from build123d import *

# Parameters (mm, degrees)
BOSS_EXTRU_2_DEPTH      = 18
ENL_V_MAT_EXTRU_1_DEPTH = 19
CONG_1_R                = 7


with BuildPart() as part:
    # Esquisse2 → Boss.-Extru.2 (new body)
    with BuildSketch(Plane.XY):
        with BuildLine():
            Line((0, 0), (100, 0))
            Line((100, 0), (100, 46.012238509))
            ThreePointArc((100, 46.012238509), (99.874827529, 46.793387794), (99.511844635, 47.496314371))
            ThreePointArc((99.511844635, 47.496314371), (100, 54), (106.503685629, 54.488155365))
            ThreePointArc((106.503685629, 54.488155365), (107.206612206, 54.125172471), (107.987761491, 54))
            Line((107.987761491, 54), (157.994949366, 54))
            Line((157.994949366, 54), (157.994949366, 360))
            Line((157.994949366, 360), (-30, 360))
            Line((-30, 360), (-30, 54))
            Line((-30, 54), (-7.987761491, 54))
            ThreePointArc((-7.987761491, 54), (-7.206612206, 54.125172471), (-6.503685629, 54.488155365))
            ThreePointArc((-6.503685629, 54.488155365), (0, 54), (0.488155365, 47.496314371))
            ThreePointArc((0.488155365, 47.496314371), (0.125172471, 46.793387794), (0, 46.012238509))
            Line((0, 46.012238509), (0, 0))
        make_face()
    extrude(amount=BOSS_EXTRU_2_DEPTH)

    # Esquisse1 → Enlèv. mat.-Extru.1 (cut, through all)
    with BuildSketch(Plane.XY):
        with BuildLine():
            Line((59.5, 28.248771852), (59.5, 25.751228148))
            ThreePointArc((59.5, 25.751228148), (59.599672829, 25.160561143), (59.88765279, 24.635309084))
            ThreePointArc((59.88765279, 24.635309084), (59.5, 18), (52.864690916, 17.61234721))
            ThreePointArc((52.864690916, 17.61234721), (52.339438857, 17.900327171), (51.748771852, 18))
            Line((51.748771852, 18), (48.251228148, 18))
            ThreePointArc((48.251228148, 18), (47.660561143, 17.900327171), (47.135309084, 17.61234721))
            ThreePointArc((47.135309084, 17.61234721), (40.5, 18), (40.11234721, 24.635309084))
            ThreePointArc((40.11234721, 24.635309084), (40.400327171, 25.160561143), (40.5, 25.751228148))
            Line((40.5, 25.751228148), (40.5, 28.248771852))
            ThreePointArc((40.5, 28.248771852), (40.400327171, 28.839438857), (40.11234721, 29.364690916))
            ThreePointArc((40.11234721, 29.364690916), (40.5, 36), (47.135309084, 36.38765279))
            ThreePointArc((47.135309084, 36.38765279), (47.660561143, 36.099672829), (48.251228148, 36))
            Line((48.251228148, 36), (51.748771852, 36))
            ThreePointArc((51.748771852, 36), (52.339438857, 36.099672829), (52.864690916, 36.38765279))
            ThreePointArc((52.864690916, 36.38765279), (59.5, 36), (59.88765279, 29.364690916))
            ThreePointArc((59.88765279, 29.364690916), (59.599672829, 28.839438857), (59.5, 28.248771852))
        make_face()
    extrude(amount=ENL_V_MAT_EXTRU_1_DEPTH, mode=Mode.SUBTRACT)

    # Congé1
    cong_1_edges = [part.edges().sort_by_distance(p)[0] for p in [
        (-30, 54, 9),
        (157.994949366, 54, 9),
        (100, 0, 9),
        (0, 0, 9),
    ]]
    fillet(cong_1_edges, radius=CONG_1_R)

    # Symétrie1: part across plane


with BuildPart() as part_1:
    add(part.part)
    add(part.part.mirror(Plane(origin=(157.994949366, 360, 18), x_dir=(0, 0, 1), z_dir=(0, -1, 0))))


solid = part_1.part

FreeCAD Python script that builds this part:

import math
import FreeCAD as App
import Part
import Sketcher

V = App.Vector


def edges_at(feature, points):
    """Names of the edges that pass closest to the given points."""
    edges = feature.Shape.Edges
    near = lambda p: min(range(len(edges)), key=lambda i: edges[i].distToShape(Part.Vertex(*p))[0])
    return sorted({f"Edge{near(p) + 1}" for p in points})

doc = App.newDocument("Part")
body = doc.addObject("PartDesign::Body", "Body")

sketch1 = body.newObject("Sketcher::SketchObject", "Sketch")
sketch1.AttachmentSupport = (doc.getObject("XY_Plane"), [""])
sketch1.MapMode = "FlatFace"
sketch1.addGeometry(Part.LineSegment(V(0, 0, 0), V(100, 0, 0)), False)
sketch1.addGeometry(Part.LineSegment(V(100, 0, 0), V(100, 46, 0)), False)
sketch1.addGeometry(Part.ArcOfCircle(Part.Circle(V(97.5, 46, 0), V(0, 0, 1), 2.5), math.radians(0), math.radians(36)), False)
sketch1.addGeometry(Part.ArcOfCircle(Part.Circle(V(103.5, 50.5, 0), V(0, 0, 1), 5), math.radians(54), math.radians(216)), False)
sketch1.addGeometry(Part.ArcOfCircle(Part.Circle(V(108, 56.5, 0), V(0, 0, 1), 2.5), math.radians(-126), math.radians(-90)), False)
sketch1.addGeometry(Part.LineSegment(V(108, 54, 0), V(158, 54, 0)), False)
sketch1.addGeometry(Part.LineSegment(V(158, 54, 0), V(158, 360, 0)), False)
sketch1.addGeometry(Part.LineSegment(V(158, 360, 0), V(-30, 360, 0)), False)
sketch1.addGeometry(Part.LineSegment(V(-30, 360, 0), V(-30, 54, 0)), False)
sketch1.addGeometry(Part.LineSegment(V(-30, 54, 0), V(-8, 54, 0)), False)
sketch1.addGeometry(Part.ArcOfCircle(Part.Circle(V(-8, 56.5, 0), V(0, 0, 1), 2.5), math.radians(-90), math.radians(-54)), False)
sketch1.addGeometry(Part.ArcOfCircle(Part.Circle(V(-3.5, 50.5, 0), V(0, 0, 1), 5), math.radians(-36), math.radians(126)), False)
sketch1.addGeometry(Part.ArcOfCircle(Part.Circle(V(2.5, 46, 0), V(0, 0, 1), 2.5), math.radians(144), math.radians(180)), False)
sketch1.addGeometry(Part.LineSegment(V(0, 46, 0), V(0, 0, 0)), False)
sketch1.addConstraint(Sketcher.Constraint("Coincident", 0, 2, 1, 1))
sketch1.addConstraint(Sketcher.Constraint("Tangent", 1, 2, 2, 1))
sketch1.addConstraint(Sketcher.Constraint("Tangent", 2, 2, 3, 2))
sketch1.addConstraint(Sketcher.Constraint("Tangent", 3, 1, 4, 1))
sketch1.addConstraint(Sketcher.Constraint("Tangent", 4, 2, 5, 1))
sketch1.addConstraint(Sketcher.Constraint("Coincident", 5, 2, 6, 1))
sketch1.addConstraint(Sketcher.Constraint("Coincident", 6, 2, 7, 1))
sketch1.addConstraint(Sketcher.Constraint("Coincident", 7, 2, 8, 1))
sketch1.addConstraint(Sketcher.Constraint("Coincident", 8, 2, 9, 1))
sketch1.addConstraint(Sketcher.Constraint("Tangent", 9, 2, 10, 1))
sketch1.addConstraint(Sketcher.Constraint("Tangent", 10, 2, 11, 2))
sketch1.addConstraint(Sketcher.Constraint("Tangent", 11, 1, 12, 1))
sketch1.addConstraint(Sketcher.Constraint("Tangent", 12, 2, 13, 1))
sketch1.addConstraint(Sketcher.Constraint("Coincident", 13, 2, 0, 1))
sketch1.addConstraint(Sketcher.Constraint("Horizontal", 0))
sketch1.addConstraint(Sketcher.Constraint("Vertical", 1))
sketch1.addConstraint(Sketcher.Constraint("Horizontal", 5))
sketch1.addConstraint(Sketcher.Constraint("Vertical", 6))
sketch1.addConstraint(Sketcher.Constraint("Horizontal", 7))
sketch1.addConstraint(Sketcher.Constraint("Vertical", 8))
sketch1.addConstraint(Sketcher.Constraint("Horizontal", 9))
sketch1.addConstraint(Sketcher.Constraint("Vertical", 13))
sketch1.addConstraint(Sketcher.Constraint("Coincident", 13, 2, -1, 1))
sketch1.addConstraint(Sketcher.Constraint("Equal", 2, 4))
sketch1.addConstraint(Sketcher.Constraint("Equal", 4, 10))
sketch1.addConstraint(Sketcher.Constraint("Equal", 3, 11))
sketch1.addConstraint(Sketcher.Constraint("Equal", 10, 12))
sketch1.addConstraint(Sketcher.Constraint("Horizontal", 4, 3, 10, 3))
sketch1.addConstraint(Sketcher.Constraint("Horizontal", 3, 3, 11, 3))
sketch1.addConstraint(Sketcher.Constraint("Horizontal", 2, 3, 12, 3))
sketch1.addConstraint(Sketcher.Constraint("Radius", 3, 5.0))
sketch1.addConstraint(Sketcher.Constraint("Radius", 2, 2.5))
sketch1.addConstraint(Sketcher.Constraint("DistanceX", 0, 1, 0, 2, 100.0))
sketch1.addConstraint(Sketcher.Constraint("DistanceY", 6, 1, 6, 2, 306.0))
sketch1.addConstraint(Sketcher.Constraint("DistanceY", -1, 1, 4, 2, 54.0))
sketch1.addConstraint(Sketcher.Constraint("DistanceX", 7, 2, -1, 1, 30.0))
sketch1.addConstraint(Sketcher.Constraint("DistanceX", 7, 2, 7, 1, 187.994949))
sketch1.addConstraint(Sketcher.Constraint("DistanceX", 9, 1, 9, 2, 22.012239))
sketch1.addConstraint(Sketcher.Constraint("DistanceY", 1, 1, 1, 2, 46.012239))
pad1 = body.newObject("PartDesign::Pad", "Pad")
pad1.Profile = sketch1
pad1.Length = 18

sketch2 = body.newObject("Sketcher::SketchObject", "Sketch001")
sketch2.AttachmentSupport = (doc.getObject("XY_Plane"), [""])
sketch2.MapMode = "FlatFace"
sketch2.addGeometry(Part.LineSegment(V(59.5, 25.8, 0), V(59.5, 28.2, 0)), False)
sketch2.addGeometry(Part.ArcOfCircle(Part.Circle(V(61.3, 28.2, 0), V(0, 0, 1), 1.8), math.radians(142), math.radians(180)), False)
sketch2.addGeometry(Part.ArcOfCircle(Part.Circle(V(56, 32.5, 0), V(0, 0, 1), 5), math.radians(-38), math.radians(128)), False)
sketch2.addGeometry(Part.ArcOfCircle(Part.Circle(V(51.7, 37.8, 0), V(0, 0, 1), 1.8), math.radians(-90), math.radians(-52)), False)
sketch2.addGeometry(Part.LineSegment(V(51.7, 36, 0), V(48.3, 36, 0)), False)
sketch2.addGeometry(Part.ArcOfCircle(Part.Circle(V(48.3, 37.8, 0), V(0, 0, 1), 1.8), math.radians(-128), math.radians(-90)), False)
sketch2.addGeometry(Part.ArcOfCircle(Part.Circle(V(44, 32.5, 0), V(0, 0, 1), 5), math.radians(52), math.radians(218)), False)
sketch2.addGeometry(Part.ArcOfCircle(Part.Circle(V(38.7, 28.2, 0), V(0, 0, 1), 1.8), math.radians(0), math.radians(38)), False)
sketch2.addGeometry(Part.LineSegment(V(40.5, 28.2, 0), V(40.5, 25.8, 0)), False)
sketch2.addGeometry(Part.ArcOfCircle(Part.Circle(V(38.7, 25.8, 0), V(0, 0, 1), 1.8), math.radians(-38), math.radians(0)), False)
sketch2.addGeometry(Part.ArcOfCircle(Part.Circle(V(44, 21.5, 0), V(0, 0, 1), 5), math.radians(142), math.radians(308)), False)
sketch2.addGeometry(Part.ArcOfCircle(Part.Circle(V(48.3, 16.2, 0), V(0, 0, 1), 1.8), math.radians(90), math.radians(128)), False)
sketch2.addGeometry(Part.LineSegment(V(48.3, 18, 0), V(51.7, 18, 0)), False)
sketch2.addGeometry(Part.ArcOfCircle(Part.Circle(V(51.7, 16.2, 0), V(0, 0, 1), 1.8), math.radians(52), math.radians(90)), False)
sketch2.addGeometry(Part.ArcOfCircle(Part.Circle(V(56, 21.5, 0), V(0, 0, 1), 5), math.radians(-128), math.radians(38)), False)
sketch2.addGeometry(Part.ArcOfCircle(Part.Circle(V(61.3, 25.8, 0), V(0, 0, 1), 1.8), math.radians(-180), math.radians(-142)), False)
sketch2.addConstraint(Sketcher.Constraint("Tangent", 0, 2, 1, 2))
sketch2.addConstraint(Sketcher.Constraint("Tangent", 1, 1, 2, 1))
sketch2.addConstraint(Sketcher.Constraint("Tangent", 2, 2, 3, 2))
sketch2.addConstraint(Sketcher.Constraint("Tangent", 3, 1, 4, 1))
sketch2.addConstraint(Sketcher.Constraint("Tangent", 4, 2, 5, 2))
sketch2.addConstraint(Sketcher.Constraint("Tangent", 5, 1, 6, 1))
sketch2.addConstraint(Sketcher.Constraint("Tangent", 6, 2, 7, 2))
sketch2.addConstraint(Sketcher.Constraint("Tangent", 7, 1, 8, 1))
sketch2.addConstraint(Sketcher.Constraint("Tangent", 8, 2, 9, 2))
sketch2.addConstraint(Sketcher.Constraint("Tangent", 9, 1, 10, 1))
sketch2.addConstraint(Sketcher.Constraint("Tangent", 10, 2, 11, 2))
sketch2.addConstraint(Sketcher.Constraint("Tangent", 11, 1, 12, 1))
sketch2.addConstraint(Sketcher.Constraint("Tangent", 12, 2, 13, 2))
sketch2.addConstraint(Sketcher.Constraint("Tangent", 13, 1, 14, 1))
sketch2.addConstraint(Sketcher.Constraint("Tangent", 14, 2, 15, 2))
sketch2.addConstraint(Sketcher.Constraint("Tangent", 15, 1, 0, 1))
sketch2.addConstraint(Sketcher.Constraint("Vertical", 0))
sketch2.addConstraint(Sketcher.Constraint("Horizontal", 4))
sketch2.addConstraint(Sketcher.Constraint("Vertical", 8))
sketch2.addConstraint(Sketcher.Constraint("Horizontal", 12))
sketch2.addConstraint(Sketcher.Constraint("Equal", 1, 3))
sketch2.addConstraint(Sketcher.Constraint("Equal", 3, 5))
sketch2.addConstraint(Sketcher.Constraint("Equal", 2, 6))
sketch2.addConstraint(Sketcher.Constraint("Equal", 5, 7))
sketch2.addConstraint(Sketcher.Constraint("Equal", 7, 9))
sketch2.addConstraint(Sketcher.Constraint("Equal", 6, 10))
sketch2.addConstraint(Sketcher.Constraint("Equal", 9, 11))
sketch2.addConstraint(Sketcher.Constraint("Equal", 11, 13))
sketch2.addConstraint(Sketcher.Constraint("Equal", 10, 14))
sketch2.addConstraint(Sketcher.Constraint("Equal", 13, 15))
sketch2.addConstraint(Sketcher.Constraint("Horizontal", 2, 3, 6, 3))
sketch2.addConstraint(Sketcher.Constraint("Horizontal", 1, 3, 7, 3))
sketch2.addConstraint(Sketcher.Constraint("Horizontal", 10, 3, 14, 3))
sketch2.addConstraint(Sketcher.Constraint("Horizontal", 9, 3, 15, 3))
sketch2.addConstraint(Sketcher.Constraint("Vertical", 6, 3, 10, 3))
sketch2.addConstraint(Sketcher.Constraint("Vertical", 5, 3, 11, 3))
sketch2.addConstraint(Sketcher.Constraint("Radius", 2, 5.0))
sketch2.addConstraint(Sketcher.Constraint("Radius", 1, 1.8))
sketch2.addConstraint(Sketcher.Constraint("DistanceY", -1, 1, 3, 1, 36.0))
sketch2.addConstraint(Sketcher.Constraint("DistanceY", -1, 1, 11, 1, 18.0))
sketch2.addConstraint(Sketcher.Constraint("DistanceX", -1, 1, 1, 3, 61.3))
sketch2.addConstraint(Sketcher.Constraint("DistanceX", -1, 1, 7, 3, 38.7))
sketch2.addConstraint(Sketcher.Constraint("DistanceX", 4, 2, 4, 1, 3.497544))
sketch2.addConstraint(Sketcher.Constraint("DistanceY", 0, 1, 0, 2, 2.497544))
pocket1 = body.newObject("PartDesign::Pocket", "Pocket")
pocket1.Profile = sketch2
pocket1.Type = "ThroughAll"
pocket1.Reversed = True
doc.recompute()

fillet = body.newObject("PartDesign::Fillet", "Fillet")
fillet.Base = (pocket1, edges_at(pocket1, [
    (-30, 54, 9),
    (157.995, 54, 9),
    (100, 0, 9),
    (0, 0, 9),
]))
fillet.Radius = 7
body2 = doc.addObject("PartDesign::Body", "Body001")
doc.recompute()

body2.BaseFeature = body
doc.recompute()

mirroring = doc.addObject("Part::Mirroring", "Mirroring")
mirroring.Source = body
mirroring.Base = V(157.994949, 360, 18)
mirroring.Normal = V(0, -1, 0)
body3 = doc.addObject("PartDesign::Body", "Body002")
body3.BaseFeature = mirroring
boolean = body2.newObject("PartDesign::Boolean", "Boolean")
boolean.Type = "Fuse"
boolean.addObjects([body3])
doc.recompute()
mirroring.Visibility = False

doc.recompute()
